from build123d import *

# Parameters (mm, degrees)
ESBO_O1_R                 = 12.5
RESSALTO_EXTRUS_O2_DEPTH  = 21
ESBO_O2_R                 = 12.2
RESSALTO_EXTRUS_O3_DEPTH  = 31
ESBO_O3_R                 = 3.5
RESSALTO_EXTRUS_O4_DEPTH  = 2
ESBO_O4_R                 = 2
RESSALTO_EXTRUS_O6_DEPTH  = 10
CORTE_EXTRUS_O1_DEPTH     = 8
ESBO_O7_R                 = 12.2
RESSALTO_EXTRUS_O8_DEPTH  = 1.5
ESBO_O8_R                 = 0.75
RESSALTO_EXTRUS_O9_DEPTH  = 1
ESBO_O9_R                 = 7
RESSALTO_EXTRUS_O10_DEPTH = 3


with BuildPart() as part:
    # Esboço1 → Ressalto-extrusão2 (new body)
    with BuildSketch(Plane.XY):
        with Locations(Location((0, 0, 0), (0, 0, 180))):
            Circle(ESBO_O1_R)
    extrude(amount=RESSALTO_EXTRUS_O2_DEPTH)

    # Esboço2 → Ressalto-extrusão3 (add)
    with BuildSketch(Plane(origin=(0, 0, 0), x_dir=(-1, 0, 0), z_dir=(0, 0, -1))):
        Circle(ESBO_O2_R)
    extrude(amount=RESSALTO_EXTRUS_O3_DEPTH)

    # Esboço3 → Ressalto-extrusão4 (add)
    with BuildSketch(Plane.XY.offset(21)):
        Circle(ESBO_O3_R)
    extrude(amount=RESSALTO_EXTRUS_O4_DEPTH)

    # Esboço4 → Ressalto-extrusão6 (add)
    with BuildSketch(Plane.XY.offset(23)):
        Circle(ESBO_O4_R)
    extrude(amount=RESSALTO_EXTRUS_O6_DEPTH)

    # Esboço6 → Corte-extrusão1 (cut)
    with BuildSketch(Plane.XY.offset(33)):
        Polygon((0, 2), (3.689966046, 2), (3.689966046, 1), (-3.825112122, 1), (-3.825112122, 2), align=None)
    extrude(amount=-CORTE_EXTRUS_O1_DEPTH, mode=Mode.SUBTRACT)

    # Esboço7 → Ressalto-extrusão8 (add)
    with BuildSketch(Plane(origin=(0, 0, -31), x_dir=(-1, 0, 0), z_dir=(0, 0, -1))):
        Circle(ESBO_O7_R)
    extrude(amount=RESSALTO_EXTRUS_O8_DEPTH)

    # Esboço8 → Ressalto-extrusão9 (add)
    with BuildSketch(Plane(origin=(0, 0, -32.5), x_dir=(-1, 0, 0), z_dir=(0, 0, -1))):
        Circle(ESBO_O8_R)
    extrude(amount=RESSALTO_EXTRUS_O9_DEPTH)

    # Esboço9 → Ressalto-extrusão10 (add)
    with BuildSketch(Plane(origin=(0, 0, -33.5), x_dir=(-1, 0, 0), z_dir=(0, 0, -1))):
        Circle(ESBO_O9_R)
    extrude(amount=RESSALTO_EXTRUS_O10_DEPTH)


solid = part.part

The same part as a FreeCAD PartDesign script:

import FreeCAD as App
import Part
import Sketcher
from FreeCAD import Vector
Q = App.Units.Quantity


def add_polygon(sketch, points):
    """Adds a closed chain of lines whose ends are joined by coincident constraints."""
    first, n = sketch.GeometryCount, len(points)
    for a, b in zip(points, points[1:] + points[:1]):
        sketch.addGeometry(Part.LineSegment(App.Vector(*a, 0), App.Vector(*b, 0)), False)
    for i in range(n):
        sketch.addConstraint(Sketcher.Constraint("Coincident", first + i, 2, first + (i + 1) % n, 1))

doc = App.newDocument("Part")
body = doc.addObject("PartDesign::Body", "Body")

# Sketch on XY plane
sketch1 = body.newObject("Sketcher::SketchObject", "Sketch")
sketch1.AttachmentSupport = (doc.getObject("XY_Plane"), [""])
sketch1.MapMode = "FlatFace"
sketch1.addGeometry(Part.Circle(Vector(0, 0, 0), Vector(0, 0, 1), 12), False)
sketch1.addConstraint([
    Sketcher.Constraint("Coincident", 0, 3, -1, 1),
    Sketcher.Constraint("Diameter", 0, Q("25 mm")),
])
pad1 = body.newObject("PartDesign::Pad", "Pad")
pad1.Profile = sketch1
pad1.Length = 21

# Sketch on XY plane
sketch2 = body.newObject("Sketcher::SketchObject", "Sketch001")
sketch2.AttachmentSupport = (doc.getObject("XY_Plane"), [""])
sketch2.MapMode = "FlatFace"
sketch2.addGeometry(Part.Circle(Vector(0, 0, 0), Vector(0, 0, 1), 12), False)
sketch2.addConstraint([
    Sketcher.Constraint("Coincident", 0, 3, -1, 1),
    Sketcher.Constraint("Diameter", 0, Q("24.4 mm")),
])
pad2 = body.newObject("PartDesign::Pad", "Pad001")
pad2.Profile = sketch2
pad2.Length = 31
pad2.Reversed = True

# Sketch on XY plane
sketch3 = body.newObject("Sketcher::SketchObject", "Sketch002")
sketch3.AttachmentSupport = (doc.getObject("XY_Plane"), [""])
sketch3.MapMode = "FlatFace"
sketch3.AttachmentOffset = App.Placement(Vector(0, 0, 21), App.Rotation())
sketch3.addGeometry(Part.Circle(Vector(0, 0, 0), Vector(0, 0, 1), 3.5), False)
sketch3.addConstraint([
    Sketcher.Constraint("Coincident", 0, 3, -1, 1),
    Sketcher.Constraint("Diameter", 0, Q("7 mm")),
])
pad3 = body.newObject("PartDesign::Pad", "Pad002")
pad3.Profile = sketch3
pad3.Length = 2

# Sketch on XY plane
sketch4 = body.newObject("Sketcher::SketchObject", "Sketch003")
sketch4.AttachmentSupport = (doc.getObject("XY_Plane"), [""])
sketch4.MapMode = "FlatFace"
sketch4.AttachmentOffset = App.Placement(Vector(0, 0, 23), App.Rotation())
sketch4.addGeometry(Part.Circle(Vector(0, 0, 0), Vector(0, 0, 1), 2), False)
sketch4.addConstraint([
    Sketcher.Constraint("Coincident", 0, 3, -1, 1),
    Sketcher.Constraint("Diameter", 0, Q("4 mm")),
])
pad4 = body.newObject("PartDesign::Pad", "Pad003")
pad4.Profile = sketch4
pad4.Length = 10

# Sketch on XY plane
sketch5 = body.newObject("Sketcher::SketchObject", "Sketch004")
sketch5.AttachmentSupport = (doc.getObject("XY_Plane"), [""])
sketch5.MapMode = "FlatFace"
sketch5.AttachmentOffset = App.Placement(Vector(0, 0, 33), App.Rotation())
add_polygon(sketch5, [(3.7, 2), (-3.8, 2), (-3.8, 1), (3.7, 1)])  # lines 0-3
sketch5.addConstraint([
    Sketcher.Constraint("Horizontal", 0),
    Sketcher.Constraint("Vertical", 1),
    Sketcher.Constraint("Horizontal", 2),
    Sketcher.Constraint("Vertical", 3),
    Sketcher.Constraint("DistanceY", 1, 2, 1, 1, Q("1 mm")),
    Sketcher.Constraint("DistanceY", -1, 1, 0, 2, Q("2 mm")),
    Sketcher.Constraint("DistanceX", 0, 2, 0, 1, Q("7.515078 mm")),
    Sketcher.Constraint("DistanceX", 0, 2, -1, 1, Q("3.825112 mm")),
])
pocket1 = body.newObject("PartDesign::Pocket", "Pocket")
pocket1.Profile = sketch5
pocket1.Length = 8

# Sketch on XY plane
sketch6 = body.newObject("Sketcher::SketchObject", "Sketch005")
sketch6.AttachmentSupport = (doc.getObject("XY_Plane"), [""])
sketch6.MapMode = "FlatFace"
sketch6.AttachmentOffset = App.Placement(Vector(0, 0, -31), App.Rotation())
sketch6.addGeometry(Part.Circle(Vector(0, 0, 0), Vector(0, 0, 1), 12), False)
sketch6.addConstraint([
    Sketcher.Constraint("Coincident", 0, 3, -1, 1),
    Sketcher.Constraint("Diameter", 0, Q("24.4 mm")),
])
pad5 = body.newObject("PartDesign::Pad", "Pad004")
pad5.Profile = sketch6
pad5.Length = 1.5
pad5.Reversed = True

# Sketch on XY plane
sketch7 = body.newObject("Sketcher::SketchObject", "Sketch006")
sketch7.AttachmentSupport = (doc.getObject("XY_Plane"), [""])
sketch7.MapMode = "FlatFace"
sketch7.AttachmentOffset = App.Placement(Vector(0, 0, -32.5), App.Rotation())
sketch7.addGeometry(Part.Circle(Vector(0, 0, 0), Vector(0, 0, 1), 0.8), False)
sketch7.addConstraint([
    Sketcher.Constraint("Coincident", 0, 3, -1, 1),
    Sketcher.Constraint("Diameter", 0, Q("1.5 mm")),
])
pad6 = body.newObject("PartDesign::Pad", "Pad005")
pad6.Profile = sketch7
pad6.Length = 1
pad6.Reversed = True

# Sketch on XY plane
sketch8 = body.newObject("Sketcher::SketchObject", "Sketch007")
sketch8.AttachmentSupport = (doc.getObject("XY_Plane"), [""])
sketch8.MapMode = "FlatFace"
sketch8.AttachmentOffset = App.Placement(Vector(0, 0, -33.5), App.Rotation())
sketch8.addGeometry(Part.Circle(Vector(0, 0, 0), Vector(0, 0, 1), 7), False)
sketch8.addConstraint([
    Sketcher.Constraint("Coincident", 0, 3, -1, 1),
    Sketcher.Constraint("Diameter", 0, Q("14 mm")),
])
pad7 = body.newObject("PartDesign::Pad", "Pad006")
pad7.Profile = sketch8
pad7.Length = 3
pad7.Reversed = True

doc.recompute()
